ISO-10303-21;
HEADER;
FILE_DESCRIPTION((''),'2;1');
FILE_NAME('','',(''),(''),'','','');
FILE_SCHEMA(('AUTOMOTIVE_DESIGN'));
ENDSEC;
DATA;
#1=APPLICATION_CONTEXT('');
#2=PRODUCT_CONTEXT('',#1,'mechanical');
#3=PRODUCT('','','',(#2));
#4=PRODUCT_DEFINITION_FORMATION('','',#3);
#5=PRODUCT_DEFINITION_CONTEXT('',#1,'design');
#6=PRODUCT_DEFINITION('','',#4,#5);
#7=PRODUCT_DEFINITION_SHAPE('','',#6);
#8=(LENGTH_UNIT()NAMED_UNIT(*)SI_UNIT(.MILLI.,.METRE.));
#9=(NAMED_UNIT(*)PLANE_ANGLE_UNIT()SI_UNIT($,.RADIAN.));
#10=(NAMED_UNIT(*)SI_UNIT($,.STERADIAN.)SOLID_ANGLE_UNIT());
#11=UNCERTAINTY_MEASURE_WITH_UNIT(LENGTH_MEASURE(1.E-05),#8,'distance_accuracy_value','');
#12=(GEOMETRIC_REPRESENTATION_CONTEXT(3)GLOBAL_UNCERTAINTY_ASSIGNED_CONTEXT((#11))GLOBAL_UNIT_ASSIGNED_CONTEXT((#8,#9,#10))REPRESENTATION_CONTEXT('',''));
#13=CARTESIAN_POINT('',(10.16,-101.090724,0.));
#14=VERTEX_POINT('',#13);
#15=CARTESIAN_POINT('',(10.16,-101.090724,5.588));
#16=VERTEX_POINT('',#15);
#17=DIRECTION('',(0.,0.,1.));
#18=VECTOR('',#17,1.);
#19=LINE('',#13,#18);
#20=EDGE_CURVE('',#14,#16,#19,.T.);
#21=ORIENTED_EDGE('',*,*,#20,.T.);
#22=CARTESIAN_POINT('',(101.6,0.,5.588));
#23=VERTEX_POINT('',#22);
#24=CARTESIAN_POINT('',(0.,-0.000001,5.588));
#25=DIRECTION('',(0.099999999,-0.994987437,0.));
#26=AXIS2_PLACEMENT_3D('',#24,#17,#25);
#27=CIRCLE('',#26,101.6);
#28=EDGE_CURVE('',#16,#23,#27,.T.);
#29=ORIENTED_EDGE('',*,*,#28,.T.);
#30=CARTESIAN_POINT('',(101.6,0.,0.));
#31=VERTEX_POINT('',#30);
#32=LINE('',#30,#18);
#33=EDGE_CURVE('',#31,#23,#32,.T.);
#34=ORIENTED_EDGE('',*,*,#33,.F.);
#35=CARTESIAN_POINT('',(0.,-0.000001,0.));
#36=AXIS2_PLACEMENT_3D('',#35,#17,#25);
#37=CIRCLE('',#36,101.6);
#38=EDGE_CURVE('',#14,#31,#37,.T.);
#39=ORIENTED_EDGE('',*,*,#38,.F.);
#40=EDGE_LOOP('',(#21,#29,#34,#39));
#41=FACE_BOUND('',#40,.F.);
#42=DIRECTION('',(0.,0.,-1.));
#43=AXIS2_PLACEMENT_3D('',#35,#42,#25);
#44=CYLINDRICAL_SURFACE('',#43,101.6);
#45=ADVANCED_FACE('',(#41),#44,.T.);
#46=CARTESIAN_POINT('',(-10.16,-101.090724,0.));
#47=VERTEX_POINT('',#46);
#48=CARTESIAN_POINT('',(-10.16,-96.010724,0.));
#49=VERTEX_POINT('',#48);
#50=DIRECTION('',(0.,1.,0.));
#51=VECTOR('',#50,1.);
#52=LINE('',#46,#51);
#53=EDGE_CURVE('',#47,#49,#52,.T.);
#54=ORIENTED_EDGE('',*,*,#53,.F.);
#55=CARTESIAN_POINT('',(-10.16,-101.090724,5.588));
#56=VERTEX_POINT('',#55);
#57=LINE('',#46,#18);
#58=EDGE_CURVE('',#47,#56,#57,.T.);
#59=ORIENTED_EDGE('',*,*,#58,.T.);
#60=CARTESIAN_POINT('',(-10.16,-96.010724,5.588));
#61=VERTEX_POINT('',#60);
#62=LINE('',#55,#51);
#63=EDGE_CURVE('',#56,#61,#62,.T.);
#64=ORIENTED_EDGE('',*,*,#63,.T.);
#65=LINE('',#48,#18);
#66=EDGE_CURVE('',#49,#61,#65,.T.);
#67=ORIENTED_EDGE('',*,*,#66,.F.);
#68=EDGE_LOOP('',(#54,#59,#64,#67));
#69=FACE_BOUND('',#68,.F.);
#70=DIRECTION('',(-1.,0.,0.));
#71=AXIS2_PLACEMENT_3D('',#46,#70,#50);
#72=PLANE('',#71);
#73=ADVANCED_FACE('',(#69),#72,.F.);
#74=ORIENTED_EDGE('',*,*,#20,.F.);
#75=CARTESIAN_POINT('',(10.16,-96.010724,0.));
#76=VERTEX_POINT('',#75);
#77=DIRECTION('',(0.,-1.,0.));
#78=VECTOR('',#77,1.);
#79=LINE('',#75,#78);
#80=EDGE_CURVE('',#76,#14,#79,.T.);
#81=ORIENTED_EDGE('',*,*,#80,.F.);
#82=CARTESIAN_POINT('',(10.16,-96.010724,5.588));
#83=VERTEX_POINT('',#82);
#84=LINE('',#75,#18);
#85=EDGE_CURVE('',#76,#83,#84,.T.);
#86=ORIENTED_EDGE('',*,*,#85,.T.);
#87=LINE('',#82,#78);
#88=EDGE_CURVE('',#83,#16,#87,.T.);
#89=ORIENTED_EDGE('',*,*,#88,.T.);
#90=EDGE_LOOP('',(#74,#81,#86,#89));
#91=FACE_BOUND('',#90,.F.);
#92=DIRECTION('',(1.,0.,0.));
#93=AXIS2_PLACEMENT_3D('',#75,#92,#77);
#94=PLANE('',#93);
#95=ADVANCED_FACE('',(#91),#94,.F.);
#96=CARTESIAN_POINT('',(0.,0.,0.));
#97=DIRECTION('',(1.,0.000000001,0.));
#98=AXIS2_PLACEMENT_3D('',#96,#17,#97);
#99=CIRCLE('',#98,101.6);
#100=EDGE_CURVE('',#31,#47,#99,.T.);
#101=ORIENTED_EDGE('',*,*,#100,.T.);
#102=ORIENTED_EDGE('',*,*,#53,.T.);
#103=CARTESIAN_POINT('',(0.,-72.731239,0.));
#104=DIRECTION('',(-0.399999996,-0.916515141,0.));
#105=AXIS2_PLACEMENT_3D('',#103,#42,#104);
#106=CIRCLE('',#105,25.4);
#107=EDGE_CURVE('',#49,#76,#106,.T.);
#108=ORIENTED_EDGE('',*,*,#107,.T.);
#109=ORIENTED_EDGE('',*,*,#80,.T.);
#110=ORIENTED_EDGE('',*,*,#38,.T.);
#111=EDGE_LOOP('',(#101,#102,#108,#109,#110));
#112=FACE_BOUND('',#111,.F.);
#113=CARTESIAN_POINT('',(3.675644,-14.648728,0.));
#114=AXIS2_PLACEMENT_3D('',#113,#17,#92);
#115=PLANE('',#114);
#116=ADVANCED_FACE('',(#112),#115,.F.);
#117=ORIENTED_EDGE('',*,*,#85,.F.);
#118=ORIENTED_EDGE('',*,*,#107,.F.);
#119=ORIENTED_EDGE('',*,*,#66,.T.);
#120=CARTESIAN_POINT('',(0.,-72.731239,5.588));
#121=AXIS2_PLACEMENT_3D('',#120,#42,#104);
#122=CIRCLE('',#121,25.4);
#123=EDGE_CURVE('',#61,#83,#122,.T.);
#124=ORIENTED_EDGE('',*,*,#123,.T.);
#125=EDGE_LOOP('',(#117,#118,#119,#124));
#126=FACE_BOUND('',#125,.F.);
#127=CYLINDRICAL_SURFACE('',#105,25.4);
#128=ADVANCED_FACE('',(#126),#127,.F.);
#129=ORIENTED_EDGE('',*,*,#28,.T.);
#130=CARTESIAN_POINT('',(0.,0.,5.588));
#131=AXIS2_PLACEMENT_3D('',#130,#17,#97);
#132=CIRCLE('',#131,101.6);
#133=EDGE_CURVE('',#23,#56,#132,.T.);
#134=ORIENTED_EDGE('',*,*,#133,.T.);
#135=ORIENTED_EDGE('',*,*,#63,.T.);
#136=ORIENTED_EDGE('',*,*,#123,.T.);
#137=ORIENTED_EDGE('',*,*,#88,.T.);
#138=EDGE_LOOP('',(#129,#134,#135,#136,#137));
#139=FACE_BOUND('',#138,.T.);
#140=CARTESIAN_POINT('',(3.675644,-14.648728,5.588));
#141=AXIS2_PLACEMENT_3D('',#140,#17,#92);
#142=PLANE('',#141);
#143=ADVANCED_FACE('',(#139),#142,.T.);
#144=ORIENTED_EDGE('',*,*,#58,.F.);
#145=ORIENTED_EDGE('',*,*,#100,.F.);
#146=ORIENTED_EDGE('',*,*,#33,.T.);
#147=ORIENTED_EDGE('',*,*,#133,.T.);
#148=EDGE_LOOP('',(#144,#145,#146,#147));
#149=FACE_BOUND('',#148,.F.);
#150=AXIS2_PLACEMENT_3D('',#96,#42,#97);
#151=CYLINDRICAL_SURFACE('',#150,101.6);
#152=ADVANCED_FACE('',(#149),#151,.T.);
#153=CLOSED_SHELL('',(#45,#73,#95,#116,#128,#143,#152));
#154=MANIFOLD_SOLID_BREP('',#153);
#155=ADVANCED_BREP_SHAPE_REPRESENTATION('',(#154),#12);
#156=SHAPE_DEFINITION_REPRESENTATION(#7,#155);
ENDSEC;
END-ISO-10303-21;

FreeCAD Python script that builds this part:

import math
import FreeCAD as App
import Part
import Sketcher
Q = App.Units.Quantity

doc = App.newDocument("Part")
params = doc.addObject("Spreadsheet::Sheet", "Params")
for row, (alias, value) in enumerate([
    ("sketch1_radius", "4 in"),
    ("sketch1_radius2", "1 in"),
    ("sketch1_height", "0.2 in"),
    ("pad1_length", "0.22 in"),
], start=1):
    params.set(f"A{row}", alias)
    params.set(f"B{row}", "=" + value)
    params.setAlias(f"B{row}", alias)

body = doc.addObject("PartDesign::Body", "Body")

# Sketch on XY plane
sketch1 = doc.addObject("Sketcher::SketchObject", "Sketch")
body.addObject(sketch1)
sketch1.AttachmentSupport = (doc.XY_Plane, [""])
sketch1.MapMode = "FlatFace"
sketch1.addGeometry(Part.ArcOfCircle(Part.Circle(App.Vector(0, 0, 0), App.Vector(0, 0, 1), 102), math.radians(-84), math.radians(0)), False)
sketch1.addGeometry(Part.ArcOfCircle(Part.Circle(App.Vector(0, 0, 0), App.Vector(0, 0, 1), 102), math.radians(0), math.radians(264)), False)
sketch1.addGeometry(Part.LineSegment(App.Vector(-10, -101, 0), App.Vector(-10, -96, 0)), False)
sketch1.addGeometry(Part.ArcOfCircle(Part.Circle(App.Vector(0, -73, 0), App.Vector(0, 0, 1), 25), math.radians(-66), math.radians(246)), False)
sketch1.addGeometry(Part.LineSegment(App.Vector(10, -96, 0), App.Vector(10, -101, 0)), False)
sketch1.addConstraint(Sketcher.Constraint("Tangent", 0, 2, 1, 1))
sketch1.addConstraint(Sketcher.Constraint("Coincident", 1, 2, 2, 1))
sketch1.addConstraint(Sketcher.Constraint("Coincident", 2, 2, 3, 2))
sketch1.addConstraint(Sketcher.Constraint("Coincident", 3, 1, 4, 1))
sketch1.addConstraint(Sketcher.Constraint("Coincident", 4, 2, 0, 1))
sketch1.addConstraint(Sketcher.Constraint("Vertical", 2))
sketch1.addConstraint(Sketcher.Constraint("Vertical", 4))
sketch1.addConstraint(Sketcher.Constraint("Coincident", 0, 3, -1, 1))
sketch1.addConstraint(Sketcher.Constraint("Equal", 0, 1))
sketch1.addConstraint(Sketcher.Constraint("Symmetric", 2, 2, 3, 1, -2))
sketch1.addConstraint(Sketcher.Constraint("PointOnObject", 0, 2, -1))
sketch1.addConstraint(Sketcher.Constraint("Radius", 0, Q("4 in")))
sketch1.addConstraint(Sketcher.Constraint("Radius", 3, Q("1 in")))
sketch1.addConstraint(Sketcher.Constraint("DistanceY", 2, 1, 2, 2, Q("0.2 in")))
sketch1.addConstraint(Sketcher.Constraint("DistanceX", 1, 2, -1, 1, Q("0.4 in")))
sketch1.setExpression("Constraints[11]", "Params.sketch1_radius")
sketch1.setExpression("Constraints[12]", "Params.sketch1_radius2")
sketch1.setExpression("Constraints[13]", "Params.sketch1_height")
pad1 = doc.addObject("PartDesign::Pad", "Pad")
body.addObject(pad1)
pad1.Profile = sketch1
pad1.setExpression("Length", "Params.pad1_length")

doc.recompute()
